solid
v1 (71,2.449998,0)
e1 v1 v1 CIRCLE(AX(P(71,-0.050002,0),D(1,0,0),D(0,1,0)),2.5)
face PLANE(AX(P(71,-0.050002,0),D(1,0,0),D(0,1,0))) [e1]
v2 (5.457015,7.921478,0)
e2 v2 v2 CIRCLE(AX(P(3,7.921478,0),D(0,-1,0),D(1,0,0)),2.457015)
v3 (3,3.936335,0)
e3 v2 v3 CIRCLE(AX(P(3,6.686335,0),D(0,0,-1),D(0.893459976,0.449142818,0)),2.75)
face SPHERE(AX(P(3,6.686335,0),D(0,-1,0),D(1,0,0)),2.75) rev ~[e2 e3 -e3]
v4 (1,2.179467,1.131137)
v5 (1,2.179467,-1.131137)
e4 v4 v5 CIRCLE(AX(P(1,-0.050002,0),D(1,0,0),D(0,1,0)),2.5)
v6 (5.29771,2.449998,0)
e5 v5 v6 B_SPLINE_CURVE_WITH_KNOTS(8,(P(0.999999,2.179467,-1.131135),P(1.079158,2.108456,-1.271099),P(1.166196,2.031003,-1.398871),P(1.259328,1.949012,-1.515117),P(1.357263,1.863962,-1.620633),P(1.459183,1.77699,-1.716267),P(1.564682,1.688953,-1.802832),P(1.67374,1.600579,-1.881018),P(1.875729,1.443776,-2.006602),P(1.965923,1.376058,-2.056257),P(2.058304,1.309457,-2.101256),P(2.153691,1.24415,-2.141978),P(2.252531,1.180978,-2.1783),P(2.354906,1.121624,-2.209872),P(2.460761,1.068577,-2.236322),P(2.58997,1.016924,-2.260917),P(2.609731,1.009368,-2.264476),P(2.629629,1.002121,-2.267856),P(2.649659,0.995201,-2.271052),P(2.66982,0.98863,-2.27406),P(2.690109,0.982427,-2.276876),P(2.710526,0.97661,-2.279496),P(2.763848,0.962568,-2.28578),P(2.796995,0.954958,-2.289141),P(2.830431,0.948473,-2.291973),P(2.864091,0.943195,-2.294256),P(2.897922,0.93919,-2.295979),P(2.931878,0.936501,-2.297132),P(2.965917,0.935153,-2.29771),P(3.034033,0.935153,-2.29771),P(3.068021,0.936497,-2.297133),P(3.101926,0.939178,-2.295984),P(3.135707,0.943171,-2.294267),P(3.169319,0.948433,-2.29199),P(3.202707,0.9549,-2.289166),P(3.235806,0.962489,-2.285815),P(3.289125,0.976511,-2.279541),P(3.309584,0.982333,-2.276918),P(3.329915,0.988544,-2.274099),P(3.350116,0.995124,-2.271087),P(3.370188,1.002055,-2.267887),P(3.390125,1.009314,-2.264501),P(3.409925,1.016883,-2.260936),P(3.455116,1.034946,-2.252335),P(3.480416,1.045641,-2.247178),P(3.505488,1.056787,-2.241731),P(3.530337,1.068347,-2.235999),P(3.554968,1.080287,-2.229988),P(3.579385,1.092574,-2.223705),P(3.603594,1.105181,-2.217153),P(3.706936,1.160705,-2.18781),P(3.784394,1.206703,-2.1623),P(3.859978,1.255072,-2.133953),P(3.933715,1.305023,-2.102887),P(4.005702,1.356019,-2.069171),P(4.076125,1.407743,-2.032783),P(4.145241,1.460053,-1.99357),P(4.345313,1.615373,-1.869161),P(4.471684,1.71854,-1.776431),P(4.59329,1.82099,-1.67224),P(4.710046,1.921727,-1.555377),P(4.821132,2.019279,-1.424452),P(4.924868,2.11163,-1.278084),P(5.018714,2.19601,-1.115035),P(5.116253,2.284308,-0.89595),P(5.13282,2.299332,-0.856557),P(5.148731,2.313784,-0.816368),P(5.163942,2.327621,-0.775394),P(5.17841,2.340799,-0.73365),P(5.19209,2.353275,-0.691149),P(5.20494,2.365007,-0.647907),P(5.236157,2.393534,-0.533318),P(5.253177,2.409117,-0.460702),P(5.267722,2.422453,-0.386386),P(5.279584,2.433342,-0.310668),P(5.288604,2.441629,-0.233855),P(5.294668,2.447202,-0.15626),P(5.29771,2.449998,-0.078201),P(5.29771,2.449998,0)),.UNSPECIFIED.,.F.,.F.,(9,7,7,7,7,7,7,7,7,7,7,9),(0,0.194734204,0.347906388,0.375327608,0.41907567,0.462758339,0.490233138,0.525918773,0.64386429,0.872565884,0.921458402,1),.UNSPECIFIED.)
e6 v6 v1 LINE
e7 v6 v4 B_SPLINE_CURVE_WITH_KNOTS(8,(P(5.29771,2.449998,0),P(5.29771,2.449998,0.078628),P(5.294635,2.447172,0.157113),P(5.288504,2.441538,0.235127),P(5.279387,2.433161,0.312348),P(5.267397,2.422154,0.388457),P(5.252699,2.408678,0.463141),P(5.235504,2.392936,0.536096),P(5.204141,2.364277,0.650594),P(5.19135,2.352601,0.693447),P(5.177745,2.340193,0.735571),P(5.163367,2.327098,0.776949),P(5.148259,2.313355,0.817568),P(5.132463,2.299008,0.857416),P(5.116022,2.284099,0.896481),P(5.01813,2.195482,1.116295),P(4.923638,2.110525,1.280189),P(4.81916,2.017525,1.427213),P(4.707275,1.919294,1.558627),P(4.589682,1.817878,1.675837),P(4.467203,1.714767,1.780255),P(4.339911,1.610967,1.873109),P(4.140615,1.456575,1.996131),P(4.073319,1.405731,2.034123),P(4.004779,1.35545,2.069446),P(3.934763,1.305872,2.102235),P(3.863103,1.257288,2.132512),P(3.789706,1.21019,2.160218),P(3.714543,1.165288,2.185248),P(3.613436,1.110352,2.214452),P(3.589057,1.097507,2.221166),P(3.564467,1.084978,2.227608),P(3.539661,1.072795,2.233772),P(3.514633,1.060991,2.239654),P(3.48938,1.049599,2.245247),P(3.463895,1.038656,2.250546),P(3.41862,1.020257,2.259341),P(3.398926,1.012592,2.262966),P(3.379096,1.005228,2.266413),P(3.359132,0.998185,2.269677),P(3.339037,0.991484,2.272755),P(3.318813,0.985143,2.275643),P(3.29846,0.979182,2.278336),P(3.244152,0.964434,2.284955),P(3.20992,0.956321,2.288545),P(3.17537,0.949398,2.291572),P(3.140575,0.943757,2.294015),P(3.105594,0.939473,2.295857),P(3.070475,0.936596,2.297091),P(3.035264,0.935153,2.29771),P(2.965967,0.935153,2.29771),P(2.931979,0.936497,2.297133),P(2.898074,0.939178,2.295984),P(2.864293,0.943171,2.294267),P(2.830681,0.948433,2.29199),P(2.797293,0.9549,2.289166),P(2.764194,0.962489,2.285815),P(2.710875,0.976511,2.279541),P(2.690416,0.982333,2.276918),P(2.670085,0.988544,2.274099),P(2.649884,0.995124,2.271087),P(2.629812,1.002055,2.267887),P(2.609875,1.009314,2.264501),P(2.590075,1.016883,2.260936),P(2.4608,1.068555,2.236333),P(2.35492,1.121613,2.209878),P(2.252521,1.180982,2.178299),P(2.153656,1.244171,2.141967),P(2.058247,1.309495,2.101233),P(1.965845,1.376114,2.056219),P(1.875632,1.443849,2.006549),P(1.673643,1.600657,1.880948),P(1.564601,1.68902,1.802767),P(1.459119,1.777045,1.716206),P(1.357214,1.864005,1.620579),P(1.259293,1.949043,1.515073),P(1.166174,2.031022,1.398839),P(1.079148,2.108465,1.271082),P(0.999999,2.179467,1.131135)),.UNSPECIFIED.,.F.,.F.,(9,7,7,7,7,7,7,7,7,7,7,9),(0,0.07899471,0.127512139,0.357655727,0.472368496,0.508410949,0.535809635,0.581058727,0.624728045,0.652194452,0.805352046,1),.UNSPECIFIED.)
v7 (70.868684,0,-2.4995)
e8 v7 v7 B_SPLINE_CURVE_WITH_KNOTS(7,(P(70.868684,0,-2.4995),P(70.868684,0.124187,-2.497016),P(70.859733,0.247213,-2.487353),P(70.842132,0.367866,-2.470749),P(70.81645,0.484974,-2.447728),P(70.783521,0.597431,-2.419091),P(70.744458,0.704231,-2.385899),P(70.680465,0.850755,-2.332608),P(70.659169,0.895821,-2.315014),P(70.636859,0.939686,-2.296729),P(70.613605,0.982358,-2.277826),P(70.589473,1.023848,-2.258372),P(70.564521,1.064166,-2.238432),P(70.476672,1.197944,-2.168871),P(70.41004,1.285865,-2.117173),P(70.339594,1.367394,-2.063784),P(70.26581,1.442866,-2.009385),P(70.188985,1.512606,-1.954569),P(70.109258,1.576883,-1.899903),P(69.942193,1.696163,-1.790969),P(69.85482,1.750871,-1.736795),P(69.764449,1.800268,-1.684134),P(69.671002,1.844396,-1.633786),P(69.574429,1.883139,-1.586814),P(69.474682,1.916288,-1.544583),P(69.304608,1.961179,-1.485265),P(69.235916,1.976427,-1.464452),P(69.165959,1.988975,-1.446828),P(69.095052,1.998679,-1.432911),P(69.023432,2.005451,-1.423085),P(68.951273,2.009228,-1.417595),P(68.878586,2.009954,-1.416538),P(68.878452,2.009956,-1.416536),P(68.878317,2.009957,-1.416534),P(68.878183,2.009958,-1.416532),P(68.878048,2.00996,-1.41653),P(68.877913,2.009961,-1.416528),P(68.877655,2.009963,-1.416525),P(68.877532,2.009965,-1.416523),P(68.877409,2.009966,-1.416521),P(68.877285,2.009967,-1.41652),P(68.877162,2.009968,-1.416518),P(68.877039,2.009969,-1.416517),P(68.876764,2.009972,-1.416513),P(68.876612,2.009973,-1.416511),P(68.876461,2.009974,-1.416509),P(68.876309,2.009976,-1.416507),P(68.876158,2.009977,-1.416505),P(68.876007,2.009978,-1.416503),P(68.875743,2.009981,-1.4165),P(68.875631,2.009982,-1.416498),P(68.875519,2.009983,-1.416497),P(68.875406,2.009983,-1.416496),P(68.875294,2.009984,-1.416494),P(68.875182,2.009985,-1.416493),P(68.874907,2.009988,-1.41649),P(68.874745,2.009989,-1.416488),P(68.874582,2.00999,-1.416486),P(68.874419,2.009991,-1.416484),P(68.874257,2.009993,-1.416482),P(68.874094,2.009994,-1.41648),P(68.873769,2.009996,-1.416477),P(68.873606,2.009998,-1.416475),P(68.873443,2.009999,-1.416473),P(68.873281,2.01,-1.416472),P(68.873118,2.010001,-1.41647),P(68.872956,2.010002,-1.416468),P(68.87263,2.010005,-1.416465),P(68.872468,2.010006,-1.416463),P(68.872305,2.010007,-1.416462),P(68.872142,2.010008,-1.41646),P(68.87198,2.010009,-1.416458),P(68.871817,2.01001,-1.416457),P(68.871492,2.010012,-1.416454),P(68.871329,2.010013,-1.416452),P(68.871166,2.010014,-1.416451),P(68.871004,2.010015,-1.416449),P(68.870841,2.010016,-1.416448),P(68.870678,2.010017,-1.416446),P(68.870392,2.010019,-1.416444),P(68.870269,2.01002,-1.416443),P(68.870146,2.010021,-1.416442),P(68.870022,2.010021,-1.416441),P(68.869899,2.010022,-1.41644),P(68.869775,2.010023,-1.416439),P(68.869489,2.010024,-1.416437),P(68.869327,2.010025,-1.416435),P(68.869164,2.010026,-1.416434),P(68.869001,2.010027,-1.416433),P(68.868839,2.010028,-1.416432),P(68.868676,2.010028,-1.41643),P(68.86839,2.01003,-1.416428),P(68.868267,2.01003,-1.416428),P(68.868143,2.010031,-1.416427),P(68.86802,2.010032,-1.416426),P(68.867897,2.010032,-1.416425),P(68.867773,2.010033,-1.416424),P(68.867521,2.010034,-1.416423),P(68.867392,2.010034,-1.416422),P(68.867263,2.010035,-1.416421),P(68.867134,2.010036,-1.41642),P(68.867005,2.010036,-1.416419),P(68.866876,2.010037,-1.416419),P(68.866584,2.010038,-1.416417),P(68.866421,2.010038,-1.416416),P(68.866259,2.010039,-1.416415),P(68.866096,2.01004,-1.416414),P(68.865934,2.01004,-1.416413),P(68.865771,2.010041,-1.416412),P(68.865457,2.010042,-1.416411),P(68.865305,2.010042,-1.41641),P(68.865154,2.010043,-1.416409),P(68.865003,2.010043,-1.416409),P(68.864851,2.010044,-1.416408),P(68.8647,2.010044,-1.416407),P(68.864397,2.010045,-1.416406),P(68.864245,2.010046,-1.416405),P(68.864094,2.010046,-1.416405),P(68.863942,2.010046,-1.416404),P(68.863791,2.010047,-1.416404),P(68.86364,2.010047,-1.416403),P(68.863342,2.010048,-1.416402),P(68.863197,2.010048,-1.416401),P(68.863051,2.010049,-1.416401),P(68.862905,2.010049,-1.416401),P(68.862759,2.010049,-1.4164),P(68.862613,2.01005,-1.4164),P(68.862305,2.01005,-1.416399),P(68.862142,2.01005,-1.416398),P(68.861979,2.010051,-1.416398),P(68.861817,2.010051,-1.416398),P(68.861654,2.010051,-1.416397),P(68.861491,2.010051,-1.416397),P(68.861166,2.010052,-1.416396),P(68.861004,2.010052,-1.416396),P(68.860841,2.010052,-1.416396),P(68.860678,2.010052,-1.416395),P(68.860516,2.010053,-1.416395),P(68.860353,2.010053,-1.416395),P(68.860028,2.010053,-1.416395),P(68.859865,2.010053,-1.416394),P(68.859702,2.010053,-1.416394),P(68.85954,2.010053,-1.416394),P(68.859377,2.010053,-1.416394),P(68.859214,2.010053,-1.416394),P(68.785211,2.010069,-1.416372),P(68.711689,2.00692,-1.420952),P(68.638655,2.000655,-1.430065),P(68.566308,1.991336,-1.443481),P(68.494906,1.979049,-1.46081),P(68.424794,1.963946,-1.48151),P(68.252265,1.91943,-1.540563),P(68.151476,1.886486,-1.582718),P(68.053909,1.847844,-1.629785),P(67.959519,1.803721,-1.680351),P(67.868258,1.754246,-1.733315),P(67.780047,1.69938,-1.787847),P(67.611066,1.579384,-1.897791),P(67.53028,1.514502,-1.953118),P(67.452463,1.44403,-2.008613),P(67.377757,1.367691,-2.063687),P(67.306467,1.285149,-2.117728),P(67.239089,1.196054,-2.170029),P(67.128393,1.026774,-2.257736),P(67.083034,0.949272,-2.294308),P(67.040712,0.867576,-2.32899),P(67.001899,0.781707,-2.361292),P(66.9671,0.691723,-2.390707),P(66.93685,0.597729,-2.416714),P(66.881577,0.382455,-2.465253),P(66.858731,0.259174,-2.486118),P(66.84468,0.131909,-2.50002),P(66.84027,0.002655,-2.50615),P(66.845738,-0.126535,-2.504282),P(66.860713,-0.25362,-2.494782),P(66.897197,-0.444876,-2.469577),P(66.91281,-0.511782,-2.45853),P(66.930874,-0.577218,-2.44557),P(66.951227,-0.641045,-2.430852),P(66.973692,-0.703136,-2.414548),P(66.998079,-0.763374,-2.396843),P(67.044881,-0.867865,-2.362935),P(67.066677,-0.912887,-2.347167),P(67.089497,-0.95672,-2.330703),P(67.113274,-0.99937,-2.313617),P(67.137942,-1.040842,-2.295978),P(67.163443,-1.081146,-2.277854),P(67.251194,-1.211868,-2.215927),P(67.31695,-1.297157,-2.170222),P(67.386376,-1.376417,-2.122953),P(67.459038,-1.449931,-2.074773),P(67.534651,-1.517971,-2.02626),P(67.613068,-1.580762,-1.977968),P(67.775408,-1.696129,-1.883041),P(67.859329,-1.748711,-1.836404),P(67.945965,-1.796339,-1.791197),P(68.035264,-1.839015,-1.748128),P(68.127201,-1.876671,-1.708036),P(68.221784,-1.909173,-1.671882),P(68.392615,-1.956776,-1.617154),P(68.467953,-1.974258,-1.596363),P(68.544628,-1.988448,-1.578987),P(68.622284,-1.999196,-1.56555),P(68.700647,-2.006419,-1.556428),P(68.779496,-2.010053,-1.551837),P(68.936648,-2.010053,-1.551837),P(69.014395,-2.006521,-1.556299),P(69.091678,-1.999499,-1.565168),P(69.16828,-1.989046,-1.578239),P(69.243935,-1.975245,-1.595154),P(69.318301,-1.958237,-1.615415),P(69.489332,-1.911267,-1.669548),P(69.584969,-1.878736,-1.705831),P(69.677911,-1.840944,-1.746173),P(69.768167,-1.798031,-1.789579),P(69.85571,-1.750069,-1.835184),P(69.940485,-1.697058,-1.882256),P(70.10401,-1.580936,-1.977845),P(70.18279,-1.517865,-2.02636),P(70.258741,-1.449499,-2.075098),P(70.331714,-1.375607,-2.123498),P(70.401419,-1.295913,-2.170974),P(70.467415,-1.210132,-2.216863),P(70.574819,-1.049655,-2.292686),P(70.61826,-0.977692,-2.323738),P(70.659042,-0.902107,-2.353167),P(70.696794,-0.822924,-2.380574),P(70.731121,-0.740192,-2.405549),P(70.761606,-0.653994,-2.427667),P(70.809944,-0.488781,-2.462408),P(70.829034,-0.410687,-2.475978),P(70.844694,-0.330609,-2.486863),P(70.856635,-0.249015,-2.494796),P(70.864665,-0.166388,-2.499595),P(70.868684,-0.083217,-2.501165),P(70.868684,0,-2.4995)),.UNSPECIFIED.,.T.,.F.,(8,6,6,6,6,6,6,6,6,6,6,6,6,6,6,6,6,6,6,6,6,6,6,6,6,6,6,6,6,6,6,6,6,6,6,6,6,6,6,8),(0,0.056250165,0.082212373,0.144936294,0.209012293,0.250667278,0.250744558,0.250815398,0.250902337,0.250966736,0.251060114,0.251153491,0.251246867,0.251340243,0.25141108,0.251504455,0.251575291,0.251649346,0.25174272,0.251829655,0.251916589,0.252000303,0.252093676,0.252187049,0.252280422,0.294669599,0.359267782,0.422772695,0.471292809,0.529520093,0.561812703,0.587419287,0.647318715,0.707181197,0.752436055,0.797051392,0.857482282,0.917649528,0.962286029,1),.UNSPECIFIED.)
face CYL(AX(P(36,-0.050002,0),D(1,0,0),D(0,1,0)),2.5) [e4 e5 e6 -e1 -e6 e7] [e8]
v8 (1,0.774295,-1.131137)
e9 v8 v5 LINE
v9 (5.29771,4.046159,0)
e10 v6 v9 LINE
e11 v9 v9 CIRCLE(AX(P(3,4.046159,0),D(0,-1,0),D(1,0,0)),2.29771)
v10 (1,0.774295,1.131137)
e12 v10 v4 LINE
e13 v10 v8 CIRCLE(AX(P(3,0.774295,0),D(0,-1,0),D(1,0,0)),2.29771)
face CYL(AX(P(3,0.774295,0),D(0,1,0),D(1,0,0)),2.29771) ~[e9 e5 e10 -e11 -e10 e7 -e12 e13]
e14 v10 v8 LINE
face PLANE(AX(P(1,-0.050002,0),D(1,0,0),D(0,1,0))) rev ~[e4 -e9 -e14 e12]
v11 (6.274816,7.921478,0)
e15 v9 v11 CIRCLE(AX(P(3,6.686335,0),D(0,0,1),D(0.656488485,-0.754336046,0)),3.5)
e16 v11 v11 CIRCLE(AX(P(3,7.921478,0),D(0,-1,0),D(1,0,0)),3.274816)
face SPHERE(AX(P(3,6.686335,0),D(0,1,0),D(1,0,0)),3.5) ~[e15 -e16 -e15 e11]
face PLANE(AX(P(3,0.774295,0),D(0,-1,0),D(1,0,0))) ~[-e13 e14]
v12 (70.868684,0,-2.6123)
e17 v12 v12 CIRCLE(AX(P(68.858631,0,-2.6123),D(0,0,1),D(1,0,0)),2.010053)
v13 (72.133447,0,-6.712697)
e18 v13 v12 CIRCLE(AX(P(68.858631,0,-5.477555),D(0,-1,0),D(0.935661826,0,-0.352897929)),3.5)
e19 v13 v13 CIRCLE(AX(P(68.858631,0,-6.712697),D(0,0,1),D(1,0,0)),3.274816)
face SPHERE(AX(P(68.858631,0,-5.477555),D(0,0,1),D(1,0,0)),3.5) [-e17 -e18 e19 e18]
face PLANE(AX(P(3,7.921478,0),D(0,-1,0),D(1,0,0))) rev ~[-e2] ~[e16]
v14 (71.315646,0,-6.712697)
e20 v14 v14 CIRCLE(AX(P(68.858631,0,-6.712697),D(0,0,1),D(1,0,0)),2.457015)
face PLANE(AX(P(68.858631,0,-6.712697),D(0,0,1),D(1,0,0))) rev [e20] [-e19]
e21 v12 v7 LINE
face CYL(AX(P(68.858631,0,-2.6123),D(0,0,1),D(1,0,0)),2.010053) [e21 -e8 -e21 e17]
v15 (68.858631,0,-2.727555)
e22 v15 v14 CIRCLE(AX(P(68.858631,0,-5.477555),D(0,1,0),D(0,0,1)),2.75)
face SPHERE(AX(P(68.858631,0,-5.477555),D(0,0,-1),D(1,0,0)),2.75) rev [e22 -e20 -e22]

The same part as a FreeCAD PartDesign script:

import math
import FreeCAD as App
import Part
import Sketcher
from FreeCAD import Vector

doc = App.newDocument("Part")
params = doc.addObject("Spreadsheet::Sheet", "Params")
for row, (alias, value) in enumerate([
    ("sketch1_radius", "3.5 mm"),
    ("sketch1_radius2", "2.75 mm"),
    ("revolution_angle", "360 deg"),
    ("sketch2_diameter", "5 mm"),
    ("pad1_length", "70 mm"),
    ("sketch3_radius", "3.5 mm"),
    ("sketch3_radius2", "2.75 mm"),
    ("revolution2_angle", "360 deg"),
], start=1):
    params.set(f"A{row}", alias)
    params.set(f"B{row}", "=" + value)
    params.setAlias(f"B{row}", alias)

body = doc.addObject("PartDesign::Body", "Body")

# Sketch on XY plane
sketch1 = body.newObject("Sketcher::SketchObject", "Sketch")
sketch1.AttachmentSupport = (doc.getObject("XY_Plane"), [""])
sketch1.MapMode = "FlatFace"
sketch1.addGeometry(Part.LineSegment(Vector(3, 8, 0), Vector(5.3, 8, 0)), False)
sketch1.addGeometry(Part.LineSegment(Vector(5.3, 8, 0), Vector(5.3, 11.2, 0)), False)
sketch1.addGeometry(Part.ArcOfCircle(Part.Circle(Vector(3, 13.9, 0), Vector(0, 0, 1), 3.5), math.radians(-49), math.radians(21)), False)
sketch1.addGeometry(Part.LineSegment(Vector(6.3, 15.1, 0), Vector(5.5, 15.1, 0)), False)
sketch1.addGeometry(Part.ArcOfCircle(Part.Circle(Vector(3, 13.9, 0), Vector(0, 0, 1), 2.8), math.radians(-90), math.radians(27)), False)
sketch1.addGeometry(Part.LineSegment(Vector(3, 11.1, 0), Vector(3, 8, 0)), False)
sketch1.addGeometry(Part.LineSegment(Vector(3, 15.1, 0), Vector(3, 8, 0)), True)  # axis
sketch1.addConstraint(Sketcher.Constraint("Coincident", 0, 2, 1, 1))
sketch1.addConstraint(Sketcher.Constraint("Coincident", 1, 2, 2, 1))
sketch1.addConstraint(Sketcher.Constraint("Coincident", 2, 2, 3, 1))
sketch1.addConstraint(Sketcher.Constraint("Coincident", 3, 2, 4, 2))
sketch1.addConstraint(Sketcher.Constraint("Coincident", 4, 1, 5, 1))
sketch1.addConstraint(Sketcher.Constraint("Coincident", 5, 2, 0, 1))
sketch1.addConstraint(Sketcher.Constraint("Horizontal", 0))
sketch1.addConstraint(Sketcher.Constraint("Vertical", 1))
sketch1.addConstraint(Sketcher.Constraint("Horizontal", 3))
sketch1.addConstraint(Sketcher.Constraint("Vertical", 5))
sketch1.addConstraint(Sketcher.Constraint("Vertical", 6))
sketch1.addConstraint(Sketcher.Constraint("Coincident", 4, 3, 2, 3))
sketch1.addConstraint(Sketcher.Constraint("Coincident", 6, 2, 5, 2))
sketch1.addConstraint(Sketcher.Constraint("Horizontal", 3, 2, 6, 1))
sketch1.addConstraint(Sketcher.Constraint("Vertical", 2, 3, 4, 1))
sketch1.addConstraint(Sketcher.Constraint("Radius", 2, 3.5))
sketch1.addConstraint(Sketcher.Constraint("Radius", 4, 2.75))
sketch1.addConstraint(Sketcher.Constraint("DistanceX", -1, 1, 2, 3, 3.0))
sketch1.addConstraint(Sketcher.Constraint("DistanceX", 3, 2, 3, 1, 0.817801))
sketch1.addConstraint(Sketcher.Constraint("DistanceX", 0, 1, 0, 2, 2.29771))
sketch1.addConstraint(Sketcher.Constraint("DistanceY", 5, 2, 5, 1, 3.16204))
sketch1.addConstraint(Sketcher.Constraint("DistanceY", -1, 1, 1, 2, 11.246159))
sketch1.setExpression("Constraints[15]", "Params.sketch1_radius")
sketch1.setExpression("Constraints[16]", "Params.sketch1_radius2")
revolution = body.newObject("PartDesign::Revolution", "Revolution")
revolution.Profile = sketch1
revolution.ReferenceAxis = (sketch1, ["Axis0"])
revolution.setExpression("Angle", "Params.revolution_angle")

# Sketch on YZ plane
sketch2 = body.newObject("Sketcher::SketchObject", "Sketch001")
sketch2.AttachmentSupport = (doc.getObject("YZ_Plane"), [""])
sketch2.MapMode = "FlatFace"
sketch2.AttachmentOffset = App.Placement(Vector(0, 0, 36), App.Rotation())
sketch2.addGeometry(Part.Circle(Vector(7.1, 0, 0), Vector(0, 0, 1), 2.5), False)
sketch2.addConstraint(Sketcher.Constraint("PointOnObject", 0, 3, -1))
sketch2.addConstraint(Sketcher.Constraint("Diameter", 0, 5.0))
sketch2.addConstraint(Sketcher.Constraint("DistanceX", -1, 1, 0, 3, 7.149998))
sketch2.setExpression("Constraints[1]", "Params.sketch2_diameter")
pad1 = body.newObject("PartDesign::Pad", "Pad")
pad1.Profile = sketch2
pad1.setExpression("Length", "Params.pad1_length")
pad1.Midplane = True
body2 = doc.addObject("PartDesign::Body", "Body001")
doc.recompute()

body.Placement = App.Placement(Vector(0, -7.2, 0), App.Rotation(Vector(0, 0, 1), 0))
boolean = body2.newObject("PartDesign::Boolean", "Boolean")
boolean.Type = "Fuse"
boolean.addObjects([body])

# Sketch on XZ plane
sketch3 = body2.newObject("Sketcher::SketchObject", "Sketch002")
sketch3.AttachmentSupport = (doc.getObject("XZ_Plane001"), [""])
sketch3.MapMode = "FlatFace"
sketch3.addGeometry(Part.ArcOfCircle(Part.Circle(Vector(68.9, -5.5, 0), Vector(0, 0, 1), 2.8), math.radians(-27), math.radians(90)), False)
sketch3.addGeometry(Part.LineSegment(Vector(71.3, -6.7, 0), Vector(72.1, -6.7, 0)), False)
sketch3.addGeometry(Part.ArcOfCircle(Part.Circle(Vector(68.9, -5.5, 0), Vector(0, 0, 1), 3.5), math.radians(-21), math.radians(55)), False)
sketch3.addGeometry(Part.LineSegment(Vector(70.9, -2.6, 0), Vector(70.9, 0.4, 0)), False)
sketch3.addGeometry(Part.LineSegment(Vector(70.9, 0.4, 0), Vector(68.9, 0.4, 0)), False)
sketch3.addGeometry(Part.LineSegment(Vector(68.9, 0.4, 0), Vector(68.9, -2.7, 0)), False)
sketch3.addGeometry(Part.LineSegment(Vector(68.9, -6.7, 0), Vector(68.9, 0.4, 0)), True)  # axis
sketch3.addConstraint(Sketcher.Constraint("Coincident", 0, 1, 1, 1))
sketch3.addConstraint(Sketcher.Constraint("Coincident", 1, 2, 2, 1))
sketch3.addConstraint(Sketcher.Constraint("Coincident", 2, 2, 3, 1))
sketch3.addConstraint(Sketcher.Constraint("Coincident", 3, 2, 4, 1))
sketch3.addConstraint(Sketcher.Constraint("Coincident", 4, 2, 5, 1))
sketch3.addConstraint(Sketcher.Constraint("Coincident", 5, 2, 0, 2))
sketch3.addConstraint(Sketcher.Constraint("Horizontal", 1))
sketch3.addConstraint(Sketcher.Constraint("Vertical", 3))
sketch3.addConstraint(Sketcher.Constraint("Horizontal", 4))
sketch3.addConstraint(Sketcher.Constraint("Vertical", 5))
sketch3.addConstraint(Sketcher.Constraint("Vertical", 6))
sketch3.addConstraint(Sketcher.Constraint("Coincident", 2, 3, 0, 3))
sketch3.addConstraint(Sketcher.Constraint("Coincident", 6, 2, 4, 2))
sketch3.addConstraint(Sketcher.Constraint("Horizontal", 1, 2, 6, 1))
sketch3.addConstraint(Sketcher.Constraint("Vertical", 2, 3, 4, 2))
sketch3.addConstraint(Sketcher.Constraint("Radius", 2, 3.5))
sketch3.addConstraint(Sketcher.Constraint("Radius", 0, 2.75))
sketch3.addConstraint(Sketcher.Constraint("DistanceX", 1, 1, 1, 2, 0.817801))
sketch3.addConstraint(Sketcher.Constraint("DistanceY", 5, 2, 5, 1, 3.16204))
sketch3.addConstraint(Sketcher.Constraint("DistanceY", 2, 2, -1, 1, 2.6123))
sketch3.addConstraint(Sketcher.Constraint("DistanceX", 4, 2, 4, 1, 2.010053))
sketch3.addConstraint(Sketcher.Constraint("DistanceX", -1, 1, 0, 3, 68.858631))
sketch3.setExpression("Constraints[15]", "Params.sketch3_radius")
sketch3.setExpression("Constraints[16]", "Params.sketch3_radius2")
revolution2 = body2.newObject("PartDesign::Revolution", "Revolution001")
revolution2.Profile = sketch3
revolution2.ReferenceAxis = (sketch3, ["Axis0"])
revolution2.setExpression("Angle", "Params.revolution2_angle")

doc.recompute()
